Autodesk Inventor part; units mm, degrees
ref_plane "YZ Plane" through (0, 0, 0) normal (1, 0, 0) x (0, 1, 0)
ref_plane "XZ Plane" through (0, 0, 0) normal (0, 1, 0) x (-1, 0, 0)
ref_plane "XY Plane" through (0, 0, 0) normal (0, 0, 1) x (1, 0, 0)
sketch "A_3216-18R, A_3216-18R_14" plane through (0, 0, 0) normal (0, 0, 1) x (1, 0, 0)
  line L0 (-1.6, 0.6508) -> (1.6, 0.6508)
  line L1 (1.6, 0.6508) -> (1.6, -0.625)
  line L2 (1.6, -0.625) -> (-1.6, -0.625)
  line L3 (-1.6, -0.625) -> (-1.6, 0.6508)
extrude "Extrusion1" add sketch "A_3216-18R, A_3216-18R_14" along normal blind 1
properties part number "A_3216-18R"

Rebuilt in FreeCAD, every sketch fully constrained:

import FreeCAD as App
import Part
import Sketcher
Q = App.Units.Quantity

doc = App.newDocument("Part")
params = doc.addObject("Spreadsheet::Sheet", "Params")
for row, (alias, value) in enumerate([
    ("sketch1_width", "3.2 mm"),
    ("pad1_length", "1 mm"),
], start=1):
    params.set(f"A{row}", alias)
    params.set(f"B{row}", "=" + value)
    params.setAlias(f"B{row}", alias)

body = doc.addObject("PartDesign::Body", "Body")

# Sketch on XY plane
sketch1 = body.newObject("Sketcher::SketchObject", "Sketch")
sketch1.AttachmentSupport = (doc.getObject("XY_Plane"), [""])
sketch1.MapMode = "FlatFace"
sketch1.addGeometry([
    Part.LineSegment(App.Vector(1.6, 0.7, 0), App.Vector(-1.6, 0.7, 0)),
    Part.LineSegment(App.Vector(-1.6, 0.7, 0), App.Vector(-1.6, -0.6, 0)),
    Part.LineSegment(App.Vector(-1.6, -0.6, 0), App.Vector(1.6, -0.6, 0)),
    Part.LineSegment(App.Vector(1.6, -0.6, 0), App.Vector(1.6, 0.7, 0)),
], False)
sketch1.addConstraint([
    Sketcher.Constraint("Coincident", 0, 2, 1, 1),
    Sketcher.Constraint("Coincident", 1, 2, 2, 1),
    Sketcher.Constraint("Coincident", 2, 2, 3, 1),
    Sketcher.Constraint("Coincident", 3, 2, 0, 1),
    Sketcher.Constraint("Horizontal", 0),
    Sketcher.Constraint("Vertical", 1),
    Sketcher.Constraint("Horizontal", 2),
    Sketcher.Constraint("Vertical", 3),
    Sketcher.Constraint("DistanceX", 0, 2, 0, 1, Q("3.2 mm")),
    Sketcher.Constraint("DistanceX", 0, 2, -1, 1, Q("1.6 mm")),
    Sketcher.Constraint("DistanceY", 1, 2, 1, 1, Q("1.2758 mm")),
    Sketcher.Constraint("DistanceY", 1, 2, -1, 1, Q("0.625 mm")),
])
sketch1.setExpression("Constraints[8]", "Params.sketch1_width")
pad1 = body.newObject("PartDesign::Pad", "Pad")
pad1.Profile = sketch1
pad1.setExpression("Length", "Params.pad1_length")

doc.recompute()
